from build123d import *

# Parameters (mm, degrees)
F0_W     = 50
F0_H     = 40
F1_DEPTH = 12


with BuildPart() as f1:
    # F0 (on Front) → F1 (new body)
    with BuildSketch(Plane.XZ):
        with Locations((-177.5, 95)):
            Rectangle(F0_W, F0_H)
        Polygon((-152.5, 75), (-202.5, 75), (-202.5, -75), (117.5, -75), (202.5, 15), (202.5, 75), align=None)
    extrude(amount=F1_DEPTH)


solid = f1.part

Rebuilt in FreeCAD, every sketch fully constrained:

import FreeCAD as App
import Part
import Sketcher

doc = App.newDocument("Part")
body = doc.addObject("PartDesign::Body", "Body")

# Sketch on XZ plane
sketch1 = body.newObject("Sketcher::SketchObject", "Sketch")
sketch1.AttachmentSupport = (doc.getObject("XZ_Plane"), [""])
sketch1.MapMode = "FlatFace"
sketch1.addGeometry([
    Part.LineSegment(App.Vector(-202, 115, 0), App.Vector(-202, -75, 0)),  # 0
    Part.LineSegment(App.Vector(-202, -75, 0), App.Vector(118, -75, 0)),  # 1
    Part.LineSegment(App.Vector(118, -75, 0), App.Vector(202, 15, 0)),  # 2
    Part.LineSegment(App.Vector(202, 15, 0), App.Vector(202, 75, 0)),  # 3
    Part.LineSegment(App.Vector(202, 75, 0), App.Vector(-152, 75, 0)),  # 4
    Part.LineSegment(App.Vector(-152, 75, 0), App.Vector(-152, 115, 0)),  # 5
    Part.LineSegment(App.Vector(-152, 115, 0), App.Vector(-202, 115, 0)),  # 6
], False)
sketch1.addConstraint([
    Sketcher.Constraint("Coincident", 0, 2, 1, 1),
    Sketcher.Constraint("Coincident", 1, 2, 2, 1),
    Sketcher.Constraint("Coincident", 2, 2, 3, 1),
    Sketcher.Constraint("Coincident", 3, 2, 4, 1),
    Sketcher.Constraint("Coincident", 4, 2, 5, 1),
    Sketcher.Constraint("Coincident", 5, 2, 6, 1),
    Sketcher.Constraint("Coincident", 6, 2, 0, 1),
    Sketcher.Constraint("Vertical", 0),
    Sketcher.Constraint("Horizontal", 1),
    Sketcher.Constraint("Vertical", 3),
    Sketcher.Constraint("Horizontal", 4),
    Sketcher.Constraint("Vertical", 5),
    Sketcher.Constraint("Horizontal", 6),
    Sketcher.Constraint("Symmetric", 0, 2, 3, 2, -1, 1),
    Sketcher.Constraint("DistanceX", 1, 1, 1, 2, 320.0),
    Sketcher.Constraint("DistanceX", 4, 2, 4, 1, 355.0),
    Sketcher.Constraint("DistanceX", 6, 2, 6, 1, 50.0),
    Sketcher.Constraint("DistanceY", 0, 2, 0, 1, 190.0),
    Sketcher.Constraint("DistanceY", 3, 1, 3, 2, 60.0),
    Sketcher.Constraint("DistanceY", 5, 1, 5, 2, 40.0),
])
pad1 = body.newObject("PartDesign::Pad", "Pad")
pad1.Profile = sketch1
pad1.Length = 12

doc.recompute()
